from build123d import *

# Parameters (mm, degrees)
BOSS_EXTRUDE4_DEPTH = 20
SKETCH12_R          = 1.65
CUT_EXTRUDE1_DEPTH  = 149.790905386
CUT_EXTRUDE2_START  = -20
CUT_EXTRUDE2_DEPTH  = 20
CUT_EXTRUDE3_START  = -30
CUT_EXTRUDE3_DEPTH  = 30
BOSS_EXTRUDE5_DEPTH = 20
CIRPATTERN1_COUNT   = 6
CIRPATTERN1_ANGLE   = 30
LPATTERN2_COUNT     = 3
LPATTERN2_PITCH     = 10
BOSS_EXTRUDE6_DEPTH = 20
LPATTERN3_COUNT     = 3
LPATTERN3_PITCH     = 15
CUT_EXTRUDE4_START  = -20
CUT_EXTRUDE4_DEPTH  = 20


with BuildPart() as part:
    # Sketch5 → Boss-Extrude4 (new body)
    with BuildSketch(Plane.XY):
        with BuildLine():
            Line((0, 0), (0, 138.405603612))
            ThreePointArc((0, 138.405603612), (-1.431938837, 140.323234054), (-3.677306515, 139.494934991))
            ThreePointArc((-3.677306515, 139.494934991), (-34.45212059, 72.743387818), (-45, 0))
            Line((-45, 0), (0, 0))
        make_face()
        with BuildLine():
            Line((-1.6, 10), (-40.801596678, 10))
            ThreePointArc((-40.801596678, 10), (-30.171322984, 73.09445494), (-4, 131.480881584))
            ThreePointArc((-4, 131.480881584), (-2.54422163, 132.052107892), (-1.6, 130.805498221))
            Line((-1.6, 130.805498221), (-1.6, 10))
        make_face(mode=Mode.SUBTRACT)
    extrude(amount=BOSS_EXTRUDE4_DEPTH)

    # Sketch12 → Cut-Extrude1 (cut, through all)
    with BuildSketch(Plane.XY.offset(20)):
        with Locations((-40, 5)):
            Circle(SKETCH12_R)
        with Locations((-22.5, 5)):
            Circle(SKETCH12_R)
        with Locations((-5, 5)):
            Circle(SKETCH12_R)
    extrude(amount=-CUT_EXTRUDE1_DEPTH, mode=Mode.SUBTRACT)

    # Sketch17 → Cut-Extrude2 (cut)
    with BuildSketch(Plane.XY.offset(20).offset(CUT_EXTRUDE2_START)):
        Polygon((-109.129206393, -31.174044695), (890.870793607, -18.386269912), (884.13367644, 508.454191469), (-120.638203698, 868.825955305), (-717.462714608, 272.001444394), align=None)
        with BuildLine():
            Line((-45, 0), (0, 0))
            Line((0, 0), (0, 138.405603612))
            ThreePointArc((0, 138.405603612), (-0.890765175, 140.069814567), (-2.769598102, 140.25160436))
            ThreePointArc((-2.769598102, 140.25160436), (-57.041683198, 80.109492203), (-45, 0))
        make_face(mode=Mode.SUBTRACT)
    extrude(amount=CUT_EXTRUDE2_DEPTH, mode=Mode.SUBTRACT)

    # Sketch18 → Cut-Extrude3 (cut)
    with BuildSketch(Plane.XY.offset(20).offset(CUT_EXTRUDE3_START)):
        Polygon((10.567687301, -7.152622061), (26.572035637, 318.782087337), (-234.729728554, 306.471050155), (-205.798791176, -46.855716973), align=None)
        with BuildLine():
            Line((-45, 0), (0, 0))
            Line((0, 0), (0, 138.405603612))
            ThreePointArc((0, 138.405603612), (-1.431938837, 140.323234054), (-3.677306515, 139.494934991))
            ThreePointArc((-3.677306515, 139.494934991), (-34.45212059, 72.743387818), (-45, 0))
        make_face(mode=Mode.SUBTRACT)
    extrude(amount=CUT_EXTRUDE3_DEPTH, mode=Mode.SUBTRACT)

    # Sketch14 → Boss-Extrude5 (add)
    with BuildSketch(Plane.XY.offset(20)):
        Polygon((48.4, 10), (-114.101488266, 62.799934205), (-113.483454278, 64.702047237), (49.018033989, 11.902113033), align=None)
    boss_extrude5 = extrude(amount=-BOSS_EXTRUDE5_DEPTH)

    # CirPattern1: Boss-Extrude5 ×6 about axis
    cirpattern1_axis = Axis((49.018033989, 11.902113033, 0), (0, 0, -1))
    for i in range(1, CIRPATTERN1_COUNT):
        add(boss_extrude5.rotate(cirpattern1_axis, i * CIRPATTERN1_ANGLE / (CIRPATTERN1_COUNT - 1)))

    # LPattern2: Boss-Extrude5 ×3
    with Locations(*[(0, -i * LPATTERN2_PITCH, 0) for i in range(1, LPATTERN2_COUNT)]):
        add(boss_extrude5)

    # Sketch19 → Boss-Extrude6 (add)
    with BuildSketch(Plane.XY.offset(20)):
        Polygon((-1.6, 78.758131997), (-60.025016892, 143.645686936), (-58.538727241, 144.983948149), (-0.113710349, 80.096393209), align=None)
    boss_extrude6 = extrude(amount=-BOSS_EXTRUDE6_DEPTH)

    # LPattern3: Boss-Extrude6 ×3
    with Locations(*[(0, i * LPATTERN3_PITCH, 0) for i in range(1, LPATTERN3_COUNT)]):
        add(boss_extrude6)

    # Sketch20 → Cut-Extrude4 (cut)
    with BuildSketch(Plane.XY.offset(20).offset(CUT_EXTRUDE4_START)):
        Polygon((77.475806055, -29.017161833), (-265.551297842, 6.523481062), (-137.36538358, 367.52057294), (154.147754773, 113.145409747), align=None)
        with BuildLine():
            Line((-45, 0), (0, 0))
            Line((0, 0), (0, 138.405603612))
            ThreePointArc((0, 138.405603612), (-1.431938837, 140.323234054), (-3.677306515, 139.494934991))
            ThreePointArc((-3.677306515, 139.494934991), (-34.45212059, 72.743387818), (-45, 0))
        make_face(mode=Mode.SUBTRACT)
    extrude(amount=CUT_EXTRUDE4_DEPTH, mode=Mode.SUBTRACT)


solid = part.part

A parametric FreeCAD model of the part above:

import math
import FreeCAD as App
import Part
import Sketcher
from FreeCAD import Vector
Q = App.Units.Quantity


def add_polygon(sketch, points):
    """Adds a closed chain of lines whose ends are joined by coincident constraints."""
    first, n = sketch.GeometryCount, len(points)
    for a, b in zip(points, points[1:] + points[:1]):
        sketch.addGeometry(Part.LineSegment(App.Vector(*a, 0), App.Vector(*b, 0)), False)
    for i in range(n):
        sketch.addConstraint(Sketcher.Constraint("Coincident", first + i, 2, first + (i + 1) % n, 1))

doc = App.newDocument("Part")
body = doc.addObject("PartDesign::Body", "Body")

# Sketch on XY plane
sketch1 = body.newObject("Sketcher::SketchObject", "Sketch")
sketch1.AttachmentSupport = (doc.getObject("XY_Plane"), [""])
sketch1.MapMode = "FlatFace"
sketch1.addGeometry(Part.LineSegment(Vector(0, 0, 0), Vector(0, 138.4, 0)), False)
sketch1.addGeometry(Part.ArcOfCircle(Part.Circle(Vector(-2, 138.4, 0), Vector(0, 0, 1), 2), math.radians(0), math.radians(147)), False)
sketch1.addGeometry(Part.ArcOfCircle(Part.Circle(Vector(211.1, 0, 0), Vector(0, 0, 1), 256.1), math.radians(147), math.radians(180)), False)
sketch1.addGeometry(Part.LineSegment(Vector(-45, 0, 0), Vector(0, 0, 0)), False)
sketch1.addGeometry(Part.LineSegment(Vector(-1.6, 130.8, 0), Vector(-1.6, 10, 0)), False)
sketch1.addGeometry(Part.LineSegment(Vector(-1.6, 10, 0), Vector(-40.8, 10, 0)), False)
sketch1.addGeometry(Part.ArcOfCircle(Part.Circle(Vector(211.1, 0, 0), Vector(0, 0, 1), 252.1), math.radians(149), math.radians(178)), False)
sketch1.addGeometry(Part.ArcOfCircle(Part.Circle(Vector(-2.9, 130.8, 0), Vector(0, 0, 1), 1.3), math.radians(0), math.radians(149)), False)
sketch1.addConstraint(Sketcher.Constraint("Tangent", 0, 2, 1, 1))
sketch1.addConstraint(Sketcher.Constraint("Tangent", 1, 2, 2, 1))
sketch1.addConstraint(Sketcher.Constraint("Coincident", 2, 2, 3, 1))
sketch1.addConstraint(Sketcher.Constraint("Coincident", 3, 2, 0, 1))
sketch1.addConstraint(Sketcher.Constraint("Coincident", 4, 2, 5, 1))
sketch1.addConstraint(Sketcher.Constraint("Coincident", 5, 2, 6, 2))
sketch1.addConstraint(Sketcher.Constraint("Tangent", 6, 1, 7, 2))
sketch1.addConstraint(Sketcher.Constraint("Tangent", 7, 1, 4, 1))
sketch1.addConstraint(Sketcher.Constraint("Vertical", 0))
sketch1.addConstraint(Sketcher.Constraint("Horizontal", 3))
sketch1.addConstraint(Sketcher.Constraint("Vertical", 4))
sketch1.addConstraint(Sketcher.Constraint("Horizontal", 5))
sketch1.addConstraint(Sketcher.Constraint("Coincident", 3, 2, -1, 1))
sketch1.addConstraint(Sketcher.Constraint("Coincident", 6, 3, 2, 3))
sketch1.addConstraint(Sketcher.Constraint("PointOnObject", 2, 3, -1))
sketch1.addConstraint(Sketcher.Constraint("Radius", 1, Q("2 mm")))
sketch1.addConstraint(Sketcher.Constraint("DistanceX", 3, 1, 3, 2, Q("45 mm")))
sketch1.addConstraint(Sketcher.Constraint("DistanceY", -1, 1, 4, 2, Q("10 mm")))
sketch1.addConstraint(Sketcher.Constraint("DistanceX", 6, 1, -1, 1, Q("4 mm")))
sketch1.addConstraint(Sketcher.Constraint("DistanceX", 4, 2, -1, 1, Q("1.6 mm")))
sketch1.addConstraint(Sketcher.Constraint("Radius", 2, Q("256.111111 mm")))
sketch1.addConstraint(Sketcher.Constraint("Radius", 6, Q("252.111111 mm")))
pad1 = body.newObject("PartDesign::Pad", "Pad")
pad1.Profile = sketch1
pad1.Length = 20

# Sketch on XY plane
sketch2 = body.newObject("Sketcher::SketchObject", "Sketch001")
sketch2.AttachmentSupport = (doc.getObject("XY_Plane"), [""])
sketch2.MapMode = "FlatFace"
sketch2.AttachmentOffset = App.Placement(Vector(0, 0, 20), App.Rotation())
sketch2.addGeometry(Part.Circle(Vector(-40, 5, 0), Vector(0, 0, 1), 1.6), False)
sketch2.addGeometry(Part.Circle(Vector(-22.5, 5, 0), Vector(0, 0, 1), 1.6), False)
sketch2.addGeometry(Part.Circle(Vector(-5, 5, 0), Vector(0, 0, 1), 1.6), False)
sketch2.addConstraint(Sketcher.Constraint("Equal", 0, 1))
sketch2.addConstraint(Sketcher.Constraint("Equal", 1, 2))
sketch2.addConstraint(Sketcher.Constraint("Horizontal", 0, 3, 1, 3))
sketch2.addConstraint(Sketcher.Constraint("Horizontal", 1, 3, 2, 3))
sketch2.addConstraint(Sketcher.Constraint("Diameter", 0, Q("3.3 mm")))
sketch2.addConstraint(Sketcher.Constraint("DistanceX", 0, 3, -1, 1, Q("40 mm")))
sketch2.addConstraint(Sketcher.Constraint("DistanceY", -1, 1, 0, 3, Q("5 mm")))
sketch2.addConstraint(Sketcher.Constraint("DistanceX", 2, 3, -1, 1, Q("5 mm")))
sketch2.addConstraint(Sketcher.Constraint("DistanceX", 1, 3, -1, 1, Q("22.5 mm")))
pocket1 = body.newObject("PartDesign::Pocket", "Pocket")
pocket1.Profile = sketch2
pocket1.Type = "ThroughAll"

# Sketch on XY plane
sketch3 = body.newObject("Sketcher::SketchObject", "Sketch002")
sketch3.AttachmentSupport = (doc.getObject("XY_Plane"), [""])
sketch3.MapMode = "FlatFace"
add_polygon(sketch3, [(-109.129206, -31.174045), (890.870794, -18.38627), (884.133676, 508.454191), (-120.638204, 868.825955), (-717.462715, 272.001444)])  # lines 0-4
sketch3.addGeometry(Part.LineSegment(Vector(0, 0, 0), Vector(-45, 0, 0)), False)  # 5
sketch3.addGeometry(Part.ArcOfCircle(Part.Circle(Vector(33.693729, 52.788643, 0), Vector(0, 0, 1), 94.7594), math.radians(112.631266), math.radians(213.854156)), False)  # 6
sketch3.addGeometry(Part.ArcOfCircle(Part.Circle(Vector(-2, 138.405604, 0), Vector(0, 0, 1), 2), math.radians(0), math.radians(112.631266)), False)  # 7
sketch3.addGeometry(Part.LineSegment(Vector(0, 138.405604, 0), Vector(0, 0, 0)), False)  # 8
sketch3.addConstraint(Sketcher.Constraint("Coincident", 5, 2, 6, 2))
sketch3.addConstraint(Sketcher.Constraint("Coincident", 6, 1, 7, 2))
sketch3.addConstraint(Sketcher.Constraint("Coincident", 7, 1, 8, 1))
sketch3.addConstraint(Sketcher.Constraint("Coincident", 8, 2, 5, 1))
sketch3.addConstraint(Sketcher.Constraint("Horizontal", 5))
sketch3.addConstraint(Sketcher.Constraint("Vertical", 8))
sketch3.addConstraint(Sketcher.Constraint("Coincident", 8, 2, -1, 1))
sketch3.addConstraint(Sketcher.Constraint("Radius", 7, Q("2 mm")))
sketch3.addConstraint(Sketcher.Constraint("DistanceX", 5, 2, 5, 1, Q("45 mm")))
sketch3.addConstraint(Sketcher.Constraint("DistanceY", 4, 2, 2, 2, Q("900 mm")))
sketch3.addConstraint(Sketcher.Constraint("DistanceX", 4, 2, 0, 2, Q("1000 mm")))
sketch3.addConstraint(Sketcher.Constraint("Radius", 6, Q("94.7594 mm")))
sketch3.addConstraint(Sketcher.Constraint("DistanceY", 7, 3, 6, 1, Q("1.846001 mm")))
sketch3.addConstraint(Sketcher.Constraint("DistanceY", 7, 1, 6, 1, Q("1.846001 mm")))
sketch3.addConstraint(Sketcher.Constraint("DistanceY", 6, 3, 3, 2, Q("219.212801 mm")))
sketch3.addConstraint(Sketcher.Constraint("Distance", 0, Q("1000.08176 mm")))
sketch3.addConstraint(Sketcher.Constraint("Distance", 4, Q("679.69481 mm")))
sketch3.addConstraint(Sketcher.Constraint("DistanceY", 8, 2, 8, 1, Q("138.405604 mm")))
sketch3.addConstraint(Sketcher.Constraint("DistanceY", 0, 2, -1, 1, Q("18.38627 mm")))
sketch3.addConstraint(Sketcher.Constraint("DistanceY", -1, 1, 1, 2, Q("508.454191 mm")))
sketch3.addConstraint(Sketcher.Constraint("DistanceX", 2, 2, 1, 2, Q("1004.77188 mm")))
sketch3.addConstraint(Sketcher.Constraint("DistanceX", 3, 2, 2, 2, Q("596.824511 mm")))
sketch3.addConstraint(Sketcher.Constraint("DistanceX", 4, 2, 6, 1, Q("106.359608 mm")))
pocket2 = body.newObject("PartDesign::Pocket", "Pocket001")
pocket2.Profile = sketch3
pocket2.Length = 20
pocket2.Reversed = True

# Sketch on XY plane
sketch4 = body.newObject("Sketcher::SketchObject", "Sketch003")
sketch4.AttachmentSupport = (doc.getObject("XY_Plane"), [""])
sketch4.MapMode = "FlatFace"
sketch4.AttachmentOffset = App.Placement(Vector(0, 0, -10), App.Rotation())
add_polygon(sketch4, [(10.6, -7.2), (26.6, 318.8), (-234.7, 306.5), (-205.8, -46.9)])  # lines 0-3
sketch4.addGeometry(Part.LineSegment(Vector(0, 0, 0), Vector(-45, 0, 0)), False)  # 4
sketch4.addGeometry(Part.ArcOfCircle(Part.Circle(Vector(211.1, 0, 0), Vector(0, 0, 1), 256.1), math.radians(147), math.radians(180)), False)  # 5
sketch4.addGeometry(Part.ArcOfCircle(Part.Circle(Vector(-2, 138.4, 0), Vector(0, 0, 1), 2), math.radians(0), math.radians(147)), False)  # 6
sketch4.addGeometry(Part.LineSegment(Vector(0, 138.4, 0), Vector(0, 0, 0)), False)  # 7
sketch4.addConstraint(Sketcher.Constraint("Coincident", 4, 2, 5, 2))
sketch4.addConstraint(Sketcher.Constraint("Tangent", 5, 1, 6, 2))
sketch4.addConstraint(Sketcher.Constraint("Tangent", 6, 1, 7, 1))
sketch4.addConstraint(Sketcher.Constraint("Coincident", 7, 2, 4, 1))
sketch4.addConstraint(Sketcher.Constraint("Horizontal", 4))
sketch4.addConstraint(Sketcher.Constraint("Vertical", 7))
sketch4.addConstraint(Sketcher.Constraint("Coincident", 7, 2, -1, 1))
sketch4.addConstraint(Sketcher.Constraint("PointOnObject", 5, 3, -1))
sketch4.addConstraint(Sketcher.Constraint("Radius", 6, Q("2 mm")))
sketch4.addConstraint(Sketcher.Constraint("DistanceX", 4, 2, 4, 1, Q("45 mm")))
sketch4.addConstraint(Sketcher.Constraint("Radius", 5, Q("256.111111 mm")))
sketch4.addConstraint(Sketcher.Constraint("DistanceX", 1, 2, -1, 1, Q("234.729729 mm")))
sketch4.addConstraint(Sketcher.Constraint("DistanceY", -1, 1, 1, 2, Q("306.47105 mm")))
sketch4.addConstraint(Sketcher.Constraint("DistanceX", 2, 2, -1, 1, Q("205.798791 mm")))
sketch4.addConstraint(Sketcher.Constraint("DistanceY", 2, 2, 6, 3, Q("185.261321 mm")))
sketch4.addConstraint(Sketcher.Constraint("DistanceX", 2, 2, 3, 2, Q("216.366478 mm")))
sketch4.addConstraint(Sketcher.Constraint("DistanceX", 3, 2, 0, 2, Q("16.004348 mm")))
sketch4.addConstraint(Sketcher.Constraint("DistanceY", 3, 2, 0, 2, Q("325.934709 mm")))
sketch4.addConstraint(Sketcher.Constraint("Distance", 1, Q("261.591616 mm")))
pocket3 = body.newObject("PartDesign::Pocket", "Pocket002")
pocket3.Profile = sketch4
pocket3.Length = 30
pocket3.Reversed = True

# Sketch on XY plane
sketch5 = body.newObject("Sketcher::SketchObject", "Sketch004")
sketch5.AttachmentSupport = (doc.getObject("XY_Plane"), [""])
sketch5.MapMode = "FlatFace"
sketch5.AttachmentOffset = App.Placement(Vector(0, 0, 20), App.Rotation())
add_polygon(sketch5, [(-114.1, 62.8), (48.4, 10), (49, 11.9), (-113.5, 64.7)])  # lines 0-3
sketch5.addConstraint(Sketcher.Constraint("Perpendicular", 0, 1))
sketch5.addConstraint(Sketcher.Constraint("Perpendicular", 1, 2))
sketch5.addConstraint(Sketcher.Constraint("Perpendicular", 2, 3))
sketch5.addConstraint(Sketcher.Constraint("Angle", 0, Q("-18 deg")))
sketch5.addConstraint(Sketcher.Constraint("Distance", 1, Q("2 mm")))
sketch5.addConstraint(Sketcher.Constraint("DistanceY", -1, 1, 0, 2, Q("10 mm")))
sketch5.addConstraint(Sketcher.Constraint("DistanceX", -1, 1, 0, 2, Q("48.4 mm")))
sketch5.addConstraint(Sketcher.Constraint("DistanceX", 3, 2, -1, 1, Q("114.101488 mm")))
pad2 = body.newObject("PartDesign::Pad", "Pad001")
pad2.Profile = sketch5
pad2.Length = 20
pad2.Reversed = True
doc.recompute()

datumline = body.newObject("PartDesign::Line", "DatumLine")
datumline.Placement = App.Placement(Vector(49.018034, 11.902113, 0), App.Rotation(Vector(0, 0, 1), Vector(0, 0, -1)))
polarpattern = body.newObject("PartDesign::PolarPattern", "PolarPattern")
polarpattern.Originals = [pad2]
polarpattern.Axis = (datumline, [""])
polarpattern.Angle = 30
polarpattern.Occurrences = 6
body.Tip = polarpattern
doc.recompute()

linearpattern = body.newObject("PartDesign::LinearPattern", "LinearPattern")
linearpattern.Originals = [pad2]
linearpattern.Direction = (doc.getObject("Y_Axis"), [""])
linearpattern.Mode = "offset"
linearpattern.Offset = 10
linearpattern.Occurrences = 3
linearpattern.Reversed = True
body.Tip = linearpattern

# Sketch on XY plane
sketch6 = body.newObject("Sketcher::SketchObject", "Sketch005")
sketch6.AttachmentSupport = (doc.getObject("XY_Plane"), [""])
sketch6.MapMode = "FlatFace"
sketch6.AttachmentOffset = App.Placement(Vector(0, 0, 20), App.Rotation())
add_polygon(sketch6, [(-60, 143.6), (-1.6, 78.8), (-0.1, 80.1), (-58.5, 145)])  # lines 0-3
sketch6.addConstraint(Sketcher.Constraint("Perpendicular", 0, 1))
sketch6.addConstraint(Sketcher.Constraint("Perpendicular", 1, 2))
sketch6.addConstraint(Sketcher.Constraint("Perpendicular", 2, 3))
sketch6.addConstraint(Sketcher.Constraint("Angle", 0, Q("-48 deg")))
sketch6.addConstraint(Sketcher.Constraint("Distance", 1, Q("2 mm")))
sketch6.addConstraint(Sketcher.Constraint("DistanceX", 0, 2, -1, 1, Q("1.6 mm")))
sketch6.addConstraint(Sketcher.Constraint("DistanceY", -1, 1, 0, 2, Q("78.758132 mm")))
sketch6.addConstraint(Sketcher.Constraint("DistanceY", -1, 1, 2, 2, Q("144.983948 mm")))
pad3 = body.newObject("PartDesign::Pad", "Pad002")
pad3.Profile = sketch6
pad3.Length = 20
pad3.Reversed = True
doc.recompute()

linearpattern2 = body.newObject("PartDesign::LinearPattern", "LinearPattern001")
linearpattern2.Originals = [pad3]
linearpattern2.Direction = (doc.getObject("Y_Axis"), [""])
linearpattern2.Mode = "offset"
linearpattern2.Offset = 15
linearpattern2.Occurrences = 3
body.Tip = linearpattern2

# Sketch on XY plane
sketch7 = body.newObject("Sketcher::SketchObject", "Sketch006")
sketch7.AttachmentSupport = (doc.getObject("XY_Plane"), [""])
sketch7.MapMode = "FlatFace"
add_polygon(sketch7, [(-265.6, 6.5), (77.5, -29), (154.1, 113.1), (-137.4, 367.5)])  # lines 0-3
sketch7.addGeometry(Part.ArcOfCircle(Part.Circle(Vector(211.1, 0, 0), Vector(0, 0, 1), 256.1), math.radians(147), math.radians(180)), False)  # 4
sketch7.addGeometry(Part.ArcOfCircle(Part.Circle(Vector(-2, 138.4, 0), Vector(0, 0, 1), 2), math.radians(0), math.radians(147)), False)  # 5
sketch7.addGeometry(Part.LineSegment(Vector(0, 138.4, 0), Vector(0, 0, 0)), False)  # 6
sketch7.addGeometry(Part.LineSegment(Vector(0, 0, 0), Vector(-45, 0, 0)), False)  # 7
sketch7.addConstraint(Sketcher.Constraint("Tangent", 4, 1, 5, 2))
sketch7.addConstraint(Sketcher.Constraint("Tangent", 5, 1, 6, 1))
sketch7.addConstraint(Sketcher.Constraint("Coincident", 6, 2, 7, 1))
sketch7.addConstraint(Sketcher.Constraint("Coincident", 7, 2, 4, 2))
sketch7.addConstraint(Sketcher.Constraint("Vertical", 6))
sketch7.addConstraint(Sketcher.Constraint("Horizontal", 7))
sketch7.addConstraint(Sketcher.Constraint("Coincident", 6, 2, -1, 1))
sketch7.addConstraint(Sketcher.Constraint("PointOnObject", 4, 3, -1))
sketch7.addConstraint(Sketcher.Constraint("Radius", 5, Q("2 mm")))
sketch7.addConstraint(Sketcher.Constraint("DistanceX", 7, 2, 7, 1, Q("45 mm")))
sketch7.addConstraint(Sketcher.Constraint("Radius", 4, Q("256.111111 mm")))
sketch7.addConstraint(Sketcher.Constraint("Distance", 0, Q("344.863352 mm")))
sketch7.addConstraint(Sketcher.Constraint("Distance", 1, Q("161.520229 mm")))
sketch7.addConstraint(Sketcher.Constraint("Distance", 2, Q("386.893569 mm")))
sketch7.addConstraint(Sketcher.Constraint("DistanceY", 0, 2, -1, 1, Q("29.017162 mm")))
sketch7.addConstraint(Sketcher.Constraint("DistanceY", -1, 1, 1, 2, Q("113.14541 mm")))
sketch7.addConstraint(Sketcher.Constraint("DistanceY", -1, 1, 3, 2, Q("6.523481 mm")))
sketch7.addConstraint(Sketcher.Constraint("DistanceY", 5, 3, 2, 2, Q("229.114969 mm")))
sketch7.addConstraint(Sketcher.Constraint("DistanceX", 3, 2, 4, 3, Q("476.662409 mm")))
pocket4 = body.newObject("PartDesign::Pocket", "Pocket003")
pocket4.Profile = sketch7
pocket4.Length = 20
pocket4.Reversed = True

doc.recompute()
